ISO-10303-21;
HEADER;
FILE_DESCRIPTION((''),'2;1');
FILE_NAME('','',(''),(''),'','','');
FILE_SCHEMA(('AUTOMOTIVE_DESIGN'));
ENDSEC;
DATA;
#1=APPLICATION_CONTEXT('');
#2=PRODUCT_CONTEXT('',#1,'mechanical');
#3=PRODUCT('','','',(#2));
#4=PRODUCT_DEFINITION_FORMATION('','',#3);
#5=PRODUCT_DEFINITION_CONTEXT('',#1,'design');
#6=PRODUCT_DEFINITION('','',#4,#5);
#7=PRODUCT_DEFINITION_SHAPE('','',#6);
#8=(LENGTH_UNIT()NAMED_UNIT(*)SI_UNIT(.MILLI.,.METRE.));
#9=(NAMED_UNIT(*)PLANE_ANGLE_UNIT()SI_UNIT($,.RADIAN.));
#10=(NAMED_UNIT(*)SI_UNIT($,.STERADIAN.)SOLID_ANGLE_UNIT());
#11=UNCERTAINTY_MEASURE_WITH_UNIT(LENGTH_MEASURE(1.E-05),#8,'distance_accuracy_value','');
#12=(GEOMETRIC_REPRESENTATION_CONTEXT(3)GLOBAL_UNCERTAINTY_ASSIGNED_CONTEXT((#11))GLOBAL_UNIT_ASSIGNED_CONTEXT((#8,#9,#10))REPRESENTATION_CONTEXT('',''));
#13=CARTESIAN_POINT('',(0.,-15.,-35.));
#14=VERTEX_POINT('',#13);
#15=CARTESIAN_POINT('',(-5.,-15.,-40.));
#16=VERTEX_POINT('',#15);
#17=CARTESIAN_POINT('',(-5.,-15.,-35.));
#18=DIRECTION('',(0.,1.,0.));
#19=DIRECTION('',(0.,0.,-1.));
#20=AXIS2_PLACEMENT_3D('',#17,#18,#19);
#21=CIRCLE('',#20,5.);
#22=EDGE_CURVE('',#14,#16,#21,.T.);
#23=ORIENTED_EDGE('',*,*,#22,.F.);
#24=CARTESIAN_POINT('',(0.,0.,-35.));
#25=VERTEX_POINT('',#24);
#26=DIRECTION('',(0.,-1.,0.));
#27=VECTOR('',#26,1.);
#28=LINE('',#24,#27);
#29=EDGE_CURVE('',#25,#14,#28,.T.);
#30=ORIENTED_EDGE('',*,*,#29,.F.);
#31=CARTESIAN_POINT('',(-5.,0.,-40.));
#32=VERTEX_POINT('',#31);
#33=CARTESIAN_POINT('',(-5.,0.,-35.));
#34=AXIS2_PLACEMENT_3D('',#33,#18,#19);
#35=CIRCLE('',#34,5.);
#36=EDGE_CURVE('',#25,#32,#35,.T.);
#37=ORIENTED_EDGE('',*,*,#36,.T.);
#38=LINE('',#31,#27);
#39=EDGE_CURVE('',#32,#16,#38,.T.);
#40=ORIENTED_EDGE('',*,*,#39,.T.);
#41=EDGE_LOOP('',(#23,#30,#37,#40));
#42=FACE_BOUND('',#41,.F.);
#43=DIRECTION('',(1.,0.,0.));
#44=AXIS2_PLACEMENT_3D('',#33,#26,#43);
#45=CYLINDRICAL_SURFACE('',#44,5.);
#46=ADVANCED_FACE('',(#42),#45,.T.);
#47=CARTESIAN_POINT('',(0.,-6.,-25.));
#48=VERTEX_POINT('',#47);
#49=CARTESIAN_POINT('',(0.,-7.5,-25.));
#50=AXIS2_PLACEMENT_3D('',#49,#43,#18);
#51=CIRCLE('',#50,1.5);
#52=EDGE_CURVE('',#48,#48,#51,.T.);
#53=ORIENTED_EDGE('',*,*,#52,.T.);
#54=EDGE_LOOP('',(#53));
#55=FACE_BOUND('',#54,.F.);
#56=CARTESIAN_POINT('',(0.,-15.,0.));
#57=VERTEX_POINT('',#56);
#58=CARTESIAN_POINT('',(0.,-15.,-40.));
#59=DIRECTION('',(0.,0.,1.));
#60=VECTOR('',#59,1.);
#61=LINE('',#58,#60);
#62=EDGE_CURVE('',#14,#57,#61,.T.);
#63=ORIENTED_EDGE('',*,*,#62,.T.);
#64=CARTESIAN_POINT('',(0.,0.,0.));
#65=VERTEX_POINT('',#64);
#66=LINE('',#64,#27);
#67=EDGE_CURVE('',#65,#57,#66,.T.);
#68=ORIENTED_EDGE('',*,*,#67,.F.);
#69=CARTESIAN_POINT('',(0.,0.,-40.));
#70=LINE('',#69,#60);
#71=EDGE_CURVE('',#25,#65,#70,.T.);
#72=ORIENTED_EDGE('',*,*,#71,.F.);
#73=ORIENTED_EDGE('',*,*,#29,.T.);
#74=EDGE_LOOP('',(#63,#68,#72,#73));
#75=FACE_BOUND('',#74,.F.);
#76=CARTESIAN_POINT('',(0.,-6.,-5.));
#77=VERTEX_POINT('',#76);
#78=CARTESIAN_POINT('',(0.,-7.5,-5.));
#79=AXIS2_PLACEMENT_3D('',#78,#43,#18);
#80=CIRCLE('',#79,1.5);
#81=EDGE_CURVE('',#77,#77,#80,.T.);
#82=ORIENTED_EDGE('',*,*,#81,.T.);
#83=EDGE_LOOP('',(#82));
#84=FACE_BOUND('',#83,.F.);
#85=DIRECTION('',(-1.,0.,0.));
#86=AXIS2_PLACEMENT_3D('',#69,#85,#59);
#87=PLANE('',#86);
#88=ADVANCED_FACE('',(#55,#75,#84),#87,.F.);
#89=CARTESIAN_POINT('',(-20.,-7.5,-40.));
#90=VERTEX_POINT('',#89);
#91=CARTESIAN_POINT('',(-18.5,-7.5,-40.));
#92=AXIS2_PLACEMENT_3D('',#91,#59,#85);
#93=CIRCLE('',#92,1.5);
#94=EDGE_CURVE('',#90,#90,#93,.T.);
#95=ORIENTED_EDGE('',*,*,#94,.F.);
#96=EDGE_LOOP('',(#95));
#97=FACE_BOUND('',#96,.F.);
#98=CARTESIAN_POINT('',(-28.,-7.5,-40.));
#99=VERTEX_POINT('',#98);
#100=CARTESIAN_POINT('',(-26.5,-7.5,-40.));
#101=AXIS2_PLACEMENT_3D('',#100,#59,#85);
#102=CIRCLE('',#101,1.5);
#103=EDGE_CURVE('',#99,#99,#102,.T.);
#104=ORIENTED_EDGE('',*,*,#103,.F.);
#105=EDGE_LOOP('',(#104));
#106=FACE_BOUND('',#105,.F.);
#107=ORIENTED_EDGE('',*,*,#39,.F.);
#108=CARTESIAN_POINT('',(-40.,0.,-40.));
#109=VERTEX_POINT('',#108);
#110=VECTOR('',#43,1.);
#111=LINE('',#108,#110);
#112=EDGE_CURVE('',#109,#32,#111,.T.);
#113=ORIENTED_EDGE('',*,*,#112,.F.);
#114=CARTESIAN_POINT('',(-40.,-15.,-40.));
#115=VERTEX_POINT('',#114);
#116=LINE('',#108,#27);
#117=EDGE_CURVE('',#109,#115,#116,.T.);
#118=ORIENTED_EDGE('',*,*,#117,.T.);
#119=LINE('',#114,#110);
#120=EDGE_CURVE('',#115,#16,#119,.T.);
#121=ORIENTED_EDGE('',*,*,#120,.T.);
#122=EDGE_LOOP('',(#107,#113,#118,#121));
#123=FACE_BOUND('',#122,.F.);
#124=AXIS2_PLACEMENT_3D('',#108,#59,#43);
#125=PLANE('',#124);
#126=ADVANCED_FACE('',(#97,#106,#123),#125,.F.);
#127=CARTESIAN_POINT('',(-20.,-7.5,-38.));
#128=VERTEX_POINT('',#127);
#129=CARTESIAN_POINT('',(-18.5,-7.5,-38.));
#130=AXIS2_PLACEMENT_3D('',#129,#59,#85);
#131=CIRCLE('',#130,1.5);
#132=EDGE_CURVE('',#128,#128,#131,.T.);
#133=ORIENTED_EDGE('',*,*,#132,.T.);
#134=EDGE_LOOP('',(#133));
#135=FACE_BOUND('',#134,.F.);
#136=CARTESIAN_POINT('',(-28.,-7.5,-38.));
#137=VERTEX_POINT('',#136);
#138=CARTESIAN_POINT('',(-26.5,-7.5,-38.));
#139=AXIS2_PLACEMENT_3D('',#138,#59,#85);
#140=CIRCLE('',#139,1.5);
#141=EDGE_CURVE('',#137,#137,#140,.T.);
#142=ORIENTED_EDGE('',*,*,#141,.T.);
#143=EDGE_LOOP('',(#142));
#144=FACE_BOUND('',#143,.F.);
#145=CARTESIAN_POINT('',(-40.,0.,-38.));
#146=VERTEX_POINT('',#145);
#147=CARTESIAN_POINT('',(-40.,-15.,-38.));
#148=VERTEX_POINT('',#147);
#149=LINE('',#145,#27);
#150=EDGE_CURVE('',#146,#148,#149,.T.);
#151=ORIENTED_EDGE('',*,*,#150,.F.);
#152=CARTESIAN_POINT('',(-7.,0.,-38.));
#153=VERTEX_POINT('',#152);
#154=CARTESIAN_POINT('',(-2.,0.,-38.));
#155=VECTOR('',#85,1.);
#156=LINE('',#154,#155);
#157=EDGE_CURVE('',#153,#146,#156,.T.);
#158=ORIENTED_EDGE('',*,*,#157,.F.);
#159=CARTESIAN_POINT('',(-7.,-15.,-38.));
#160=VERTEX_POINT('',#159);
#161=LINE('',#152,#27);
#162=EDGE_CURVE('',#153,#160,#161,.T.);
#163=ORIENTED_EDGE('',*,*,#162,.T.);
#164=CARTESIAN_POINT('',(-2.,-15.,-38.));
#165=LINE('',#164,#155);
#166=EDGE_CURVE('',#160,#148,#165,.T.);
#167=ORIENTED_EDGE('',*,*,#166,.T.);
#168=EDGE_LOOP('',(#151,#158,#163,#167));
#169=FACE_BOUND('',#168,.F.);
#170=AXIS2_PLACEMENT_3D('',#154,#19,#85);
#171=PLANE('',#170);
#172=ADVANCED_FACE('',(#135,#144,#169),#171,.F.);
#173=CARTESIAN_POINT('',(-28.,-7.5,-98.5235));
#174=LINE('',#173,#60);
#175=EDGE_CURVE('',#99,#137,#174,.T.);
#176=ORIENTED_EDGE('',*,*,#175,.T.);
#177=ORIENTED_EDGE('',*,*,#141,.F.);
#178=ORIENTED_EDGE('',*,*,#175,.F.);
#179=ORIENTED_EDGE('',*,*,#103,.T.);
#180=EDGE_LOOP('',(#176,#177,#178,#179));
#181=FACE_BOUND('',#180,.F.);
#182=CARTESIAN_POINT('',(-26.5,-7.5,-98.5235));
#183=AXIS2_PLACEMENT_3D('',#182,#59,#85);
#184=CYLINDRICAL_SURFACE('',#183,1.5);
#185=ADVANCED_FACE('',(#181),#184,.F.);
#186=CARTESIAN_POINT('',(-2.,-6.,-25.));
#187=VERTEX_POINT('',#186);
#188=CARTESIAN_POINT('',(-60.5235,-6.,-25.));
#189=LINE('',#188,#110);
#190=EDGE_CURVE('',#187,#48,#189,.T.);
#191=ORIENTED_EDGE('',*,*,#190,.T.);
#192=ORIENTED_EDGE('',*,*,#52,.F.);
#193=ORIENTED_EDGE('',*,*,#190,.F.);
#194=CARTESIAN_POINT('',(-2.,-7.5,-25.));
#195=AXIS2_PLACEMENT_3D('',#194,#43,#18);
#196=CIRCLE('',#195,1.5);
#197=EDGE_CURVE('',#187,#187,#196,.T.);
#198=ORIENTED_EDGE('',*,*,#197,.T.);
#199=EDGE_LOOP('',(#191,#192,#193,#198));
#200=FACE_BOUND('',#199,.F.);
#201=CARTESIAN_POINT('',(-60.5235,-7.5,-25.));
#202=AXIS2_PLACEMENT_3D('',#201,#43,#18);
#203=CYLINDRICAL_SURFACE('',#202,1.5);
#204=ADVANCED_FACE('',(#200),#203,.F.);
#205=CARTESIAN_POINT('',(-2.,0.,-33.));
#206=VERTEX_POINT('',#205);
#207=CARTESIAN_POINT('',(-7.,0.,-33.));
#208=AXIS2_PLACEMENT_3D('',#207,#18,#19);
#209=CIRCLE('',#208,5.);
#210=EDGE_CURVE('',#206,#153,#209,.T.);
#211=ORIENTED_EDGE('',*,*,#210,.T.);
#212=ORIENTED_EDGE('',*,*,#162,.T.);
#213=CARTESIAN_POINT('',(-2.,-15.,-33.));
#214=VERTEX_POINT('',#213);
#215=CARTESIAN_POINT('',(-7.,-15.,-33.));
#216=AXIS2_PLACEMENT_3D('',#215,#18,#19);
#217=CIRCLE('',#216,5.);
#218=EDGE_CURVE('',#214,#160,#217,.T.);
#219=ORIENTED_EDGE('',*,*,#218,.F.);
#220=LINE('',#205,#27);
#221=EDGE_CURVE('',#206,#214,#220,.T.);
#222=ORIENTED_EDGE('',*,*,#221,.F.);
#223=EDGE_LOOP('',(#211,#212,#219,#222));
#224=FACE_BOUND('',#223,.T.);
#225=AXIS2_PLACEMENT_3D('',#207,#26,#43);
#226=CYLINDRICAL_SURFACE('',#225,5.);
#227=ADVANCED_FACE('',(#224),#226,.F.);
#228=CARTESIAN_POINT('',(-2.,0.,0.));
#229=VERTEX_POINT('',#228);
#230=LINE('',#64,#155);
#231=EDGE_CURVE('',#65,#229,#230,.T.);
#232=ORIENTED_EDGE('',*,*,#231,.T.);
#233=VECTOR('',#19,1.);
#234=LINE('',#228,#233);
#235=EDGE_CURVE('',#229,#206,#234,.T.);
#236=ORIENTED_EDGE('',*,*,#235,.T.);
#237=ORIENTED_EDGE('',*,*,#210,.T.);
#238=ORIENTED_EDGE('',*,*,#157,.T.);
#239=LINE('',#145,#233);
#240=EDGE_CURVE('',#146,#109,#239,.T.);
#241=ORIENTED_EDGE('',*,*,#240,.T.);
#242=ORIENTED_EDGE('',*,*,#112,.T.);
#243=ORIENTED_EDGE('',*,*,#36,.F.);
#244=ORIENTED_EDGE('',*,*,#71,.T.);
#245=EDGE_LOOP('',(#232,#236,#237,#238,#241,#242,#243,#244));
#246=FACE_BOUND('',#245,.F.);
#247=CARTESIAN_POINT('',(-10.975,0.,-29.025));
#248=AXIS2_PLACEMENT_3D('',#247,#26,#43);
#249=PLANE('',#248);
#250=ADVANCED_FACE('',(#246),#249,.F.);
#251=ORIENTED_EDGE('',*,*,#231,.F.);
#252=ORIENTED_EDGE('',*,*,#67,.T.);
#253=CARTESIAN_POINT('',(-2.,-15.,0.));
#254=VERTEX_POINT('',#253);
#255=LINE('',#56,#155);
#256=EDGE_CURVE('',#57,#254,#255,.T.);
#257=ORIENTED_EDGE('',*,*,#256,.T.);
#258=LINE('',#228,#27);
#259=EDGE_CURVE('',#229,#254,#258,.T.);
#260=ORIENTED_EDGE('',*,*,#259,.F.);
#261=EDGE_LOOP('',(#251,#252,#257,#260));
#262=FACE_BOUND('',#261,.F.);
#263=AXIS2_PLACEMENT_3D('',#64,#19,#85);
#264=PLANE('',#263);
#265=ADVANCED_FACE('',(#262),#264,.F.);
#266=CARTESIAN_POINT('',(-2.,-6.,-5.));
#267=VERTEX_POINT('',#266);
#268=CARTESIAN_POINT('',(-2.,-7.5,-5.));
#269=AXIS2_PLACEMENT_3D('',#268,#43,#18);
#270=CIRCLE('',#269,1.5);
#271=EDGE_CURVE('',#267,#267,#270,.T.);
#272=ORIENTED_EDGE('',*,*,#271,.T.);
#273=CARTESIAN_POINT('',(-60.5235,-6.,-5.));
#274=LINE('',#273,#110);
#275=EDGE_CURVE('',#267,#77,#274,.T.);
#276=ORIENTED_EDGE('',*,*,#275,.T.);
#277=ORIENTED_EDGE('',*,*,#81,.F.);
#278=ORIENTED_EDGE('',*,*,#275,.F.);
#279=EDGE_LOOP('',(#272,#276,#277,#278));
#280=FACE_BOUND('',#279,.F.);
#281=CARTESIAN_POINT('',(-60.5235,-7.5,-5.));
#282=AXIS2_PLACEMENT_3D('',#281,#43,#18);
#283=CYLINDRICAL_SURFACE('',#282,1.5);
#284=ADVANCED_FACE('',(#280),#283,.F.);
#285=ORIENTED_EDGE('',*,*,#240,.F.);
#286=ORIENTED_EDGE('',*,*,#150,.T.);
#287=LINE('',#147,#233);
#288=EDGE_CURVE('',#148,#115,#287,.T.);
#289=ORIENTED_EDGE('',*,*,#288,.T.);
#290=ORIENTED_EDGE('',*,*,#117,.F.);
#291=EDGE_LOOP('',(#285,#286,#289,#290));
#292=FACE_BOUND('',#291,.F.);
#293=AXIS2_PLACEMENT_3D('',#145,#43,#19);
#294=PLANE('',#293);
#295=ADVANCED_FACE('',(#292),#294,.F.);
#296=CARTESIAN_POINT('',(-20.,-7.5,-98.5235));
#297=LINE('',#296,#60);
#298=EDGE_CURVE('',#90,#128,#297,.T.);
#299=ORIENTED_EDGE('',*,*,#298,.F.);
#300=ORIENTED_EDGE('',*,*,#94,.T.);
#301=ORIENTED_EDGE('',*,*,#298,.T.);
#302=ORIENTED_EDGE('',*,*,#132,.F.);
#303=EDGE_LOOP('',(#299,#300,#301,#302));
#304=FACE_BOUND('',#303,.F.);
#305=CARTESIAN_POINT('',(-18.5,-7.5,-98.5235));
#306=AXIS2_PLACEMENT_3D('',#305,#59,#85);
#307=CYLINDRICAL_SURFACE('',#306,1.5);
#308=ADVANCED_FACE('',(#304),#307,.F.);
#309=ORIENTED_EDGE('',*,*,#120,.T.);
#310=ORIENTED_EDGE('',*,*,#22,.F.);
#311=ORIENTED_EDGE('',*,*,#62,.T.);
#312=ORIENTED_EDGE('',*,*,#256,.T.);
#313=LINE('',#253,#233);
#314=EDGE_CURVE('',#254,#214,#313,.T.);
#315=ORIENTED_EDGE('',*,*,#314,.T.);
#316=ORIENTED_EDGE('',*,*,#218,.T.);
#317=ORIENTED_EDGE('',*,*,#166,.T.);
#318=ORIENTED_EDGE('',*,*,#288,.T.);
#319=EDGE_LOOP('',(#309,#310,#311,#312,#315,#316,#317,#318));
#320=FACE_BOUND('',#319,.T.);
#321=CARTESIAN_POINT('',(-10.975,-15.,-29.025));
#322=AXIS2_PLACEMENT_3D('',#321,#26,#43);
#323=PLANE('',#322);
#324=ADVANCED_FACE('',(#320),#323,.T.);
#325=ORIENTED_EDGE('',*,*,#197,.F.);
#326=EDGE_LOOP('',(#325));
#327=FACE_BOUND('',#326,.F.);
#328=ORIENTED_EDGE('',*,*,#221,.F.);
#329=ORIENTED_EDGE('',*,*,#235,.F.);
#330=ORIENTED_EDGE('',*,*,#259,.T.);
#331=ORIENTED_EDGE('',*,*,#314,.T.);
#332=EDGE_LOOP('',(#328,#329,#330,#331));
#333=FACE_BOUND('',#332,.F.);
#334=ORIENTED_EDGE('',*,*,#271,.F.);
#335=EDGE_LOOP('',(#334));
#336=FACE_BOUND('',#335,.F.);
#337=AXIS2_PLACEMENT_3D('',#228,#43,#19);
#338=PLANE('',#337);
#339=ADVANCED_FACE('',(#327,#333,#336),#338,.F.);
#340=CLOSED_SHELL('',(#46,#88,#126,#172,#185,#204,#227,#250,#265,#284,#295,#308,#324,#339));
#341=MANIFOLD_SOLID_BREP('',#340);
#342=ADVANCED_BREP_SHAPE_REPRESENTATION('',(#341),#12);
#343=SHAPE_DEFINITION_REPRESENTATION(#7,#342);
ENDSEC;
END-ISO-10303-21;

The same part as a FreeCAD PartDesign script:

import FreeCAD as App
import Part
import Sketcher
from FreeCAD import Vector


def edges_at(feature, points):
    """Names of the edges that pass closest to the given points."""
    edges = feature.Shape.Edges
    near = lambda p: min(range(len(edges)), key=lambda i: edges[i].distToShape(Part.Vertex(*p))[0])
    return sorted({f"Edge{near(p) + 1}" for p in points})


def add_polygon(sketch, points):
    """Adds a closed chain of lines whose ends are joined by coincident constraints."""
    first, n = sketch.GeometryCount, len(points)
    for a, b in zip(points, points[1:] + points[:1]):
        sketch.addGeometry(Part.LineSegment(App.Vector(*a, 0), App.Vector(*b, 0)), False)
    for i in range(n):
        sketch.addConstraint(Sketcher.Constraint("Coincident", first + i, 2, first + (i + 1) % n, 1))

doc = App.newDocument("Part")
body = doc.addObject("PartDesign::Body", "Body")

# Sketch on XZ plane
sketch1 = body.newObject("Sketcher::SketchObject", "Sketch")
sketch1.AttachmentSupport = (doc.getObject("XZ_Plane"), [""])
sketch1.MapMode = "FlatFace"
add_polygon(sketch1, [(0, -40), (0, 0), (-2, 0), (-2, -38), (-40, -38), (-40, -40)])  # lines 0-5
sketch1.addConstraint(Sketcher.Constraint("Vertical", 0))
sketch1.addConstraint(Sketcher.Constraint("Horizontal", 1))
sketch1.addConstraint(Sketcher.Constraint("Vertical", 2))
sketch1.addConstraint(Sketcher.Constraint("Horizontal", 3))
sketch1.addConstraint(Sketcher.Constraint("Vertical", 4))
sketch1.addConstraint(Sketcher.Constraint("Horizontal", 5))
sketch1.addConstraint(Sketcher.Constraint("Coincident", 0, 2, -1, 1))
sketch1.addConstraint(Sketcher.Constraint("Equal", 5, 0))
sketch1.addConstraint(Sketcher.Constraint("Equal", 3, 2))
sketch1.addConstraint(Sketcher.Constraint("DistanceX", 1, 2, 1, 1, 2.0))
sketch1.addConstraint(Sketcher.Constraint("DistanceX", 3, 2, 3, 1, 38.0))
pad1 = body.newObject("PartDesign::Pad", "Pad")
pad1.Profile = sketch1
pad1.Length = 15
doc.recompute()

fillet = body.newObject("PartDesign::Fillet", "Fillet")
fillet.Base = (pad1, edges_at(pad1, [(0, -7.5, -40), (-2, -7.5, -38)]))
fillet.Radius = 5

# Sketch on YZ plane
sketch2 = body.newObject("Sketcher::SketchObject", "Sketch001")
sketch2.AttachmentSupport = (doc.getObject("YZ_Plane"), [""])
sketch2.MapMode = "FlatFace"
sketch2.AttachmentOffset = App.Placement(Vector(0, 0, -2), App.Rotation())
sketch2.addGeometry(Part.Circle(Vector(-7.5, -5, 0), Vector(0, 0, 1), 1.5), False)
sketch2.addGeometry(Part.Circle(Vector(-7.5, -25, 0), Vector(0, 0, 1), 1.5), False)
sketch2.addConstraint(Sketcher.Constraint("Equal", 0, 1))
sketch2.addConstraint(Sketcher.Constraint("Vertical", 0, 3, 1, 3))
sketch2.addConstraint(Sketcher.Constraint("Diameter", 0, 3.0))
sketch2.addConstraint(Sketcher.Constraint("DistanceY", 0, 3, -1, 1, 5.0))
sketch2.addConstraint(Sketcher.Constraint("DistanceY", 1, 3, -1, 1, 25.0))
sketch2.addConstraint(Sketcher.Constraint("DistanceX", 0, 3, -1, 1, 7.5))
doc.recompute()
hole = body.newObject("PartDesign::Hole", "Hole")
hole.Profile = sketch2
hole.ThreadType = "None"
hole.Diameter = 3
hole.DepthType = "ThroughAll"
hole.Reversed = True

# Sketch on XY plane
sketch3 = body.newObject("Sketcher::SketchObject", "Sketch002")
sketch3.AttachmentSupport = (doc.getObject("XY_Plane"), [""])
sketch3.MapMode = "FlatFace"
sketch3.AttachmentOffset = App.Placement(Vector(0, 0, -40), App.Rotation())
sketch3.addGeometry(Part.Circle(Vector(-26.5, -7.5, 0), Vector(0, 0, 1), 1.5), False)
sketch3.addGeometry(Part.Circle(Vector(-18.5, -7.5, 0), Vector(0, 0, 1), 1.5), False)
sketch3.addConstraint(Sketcher.Constraint("Equal", 0, 1))
sketch3.addConstraint(Sketcher.Constraint("Horizontal", 0, 3, 1, 3))
sketch3.addConstraint(Sketcher.Constraint("Diameter", 0, 3.0))
sketch3.addConstraint(Sketcher.Constraint("DistanceX", 0, 3, 1, 3, 8.0))
sketch3.addConstraint(Sketcher.Constraint("DistanceX", 0, 3, -1, 1, 26.5))
sketch3.addConstraint(Sketcher.Constraint("DistanceY", 0, 3, -1, 1, 7.5))
doc.recompute()
hole2 = body.newObject("PartDesign::Hole", "Hole001")
hole2.Profile = sketch3
hole2.ThreadType = "None"
hole2.Diameter = 3
hole2.DepthType = "ThroughAll"
hole2.Reversed = True

doc.recompute()
